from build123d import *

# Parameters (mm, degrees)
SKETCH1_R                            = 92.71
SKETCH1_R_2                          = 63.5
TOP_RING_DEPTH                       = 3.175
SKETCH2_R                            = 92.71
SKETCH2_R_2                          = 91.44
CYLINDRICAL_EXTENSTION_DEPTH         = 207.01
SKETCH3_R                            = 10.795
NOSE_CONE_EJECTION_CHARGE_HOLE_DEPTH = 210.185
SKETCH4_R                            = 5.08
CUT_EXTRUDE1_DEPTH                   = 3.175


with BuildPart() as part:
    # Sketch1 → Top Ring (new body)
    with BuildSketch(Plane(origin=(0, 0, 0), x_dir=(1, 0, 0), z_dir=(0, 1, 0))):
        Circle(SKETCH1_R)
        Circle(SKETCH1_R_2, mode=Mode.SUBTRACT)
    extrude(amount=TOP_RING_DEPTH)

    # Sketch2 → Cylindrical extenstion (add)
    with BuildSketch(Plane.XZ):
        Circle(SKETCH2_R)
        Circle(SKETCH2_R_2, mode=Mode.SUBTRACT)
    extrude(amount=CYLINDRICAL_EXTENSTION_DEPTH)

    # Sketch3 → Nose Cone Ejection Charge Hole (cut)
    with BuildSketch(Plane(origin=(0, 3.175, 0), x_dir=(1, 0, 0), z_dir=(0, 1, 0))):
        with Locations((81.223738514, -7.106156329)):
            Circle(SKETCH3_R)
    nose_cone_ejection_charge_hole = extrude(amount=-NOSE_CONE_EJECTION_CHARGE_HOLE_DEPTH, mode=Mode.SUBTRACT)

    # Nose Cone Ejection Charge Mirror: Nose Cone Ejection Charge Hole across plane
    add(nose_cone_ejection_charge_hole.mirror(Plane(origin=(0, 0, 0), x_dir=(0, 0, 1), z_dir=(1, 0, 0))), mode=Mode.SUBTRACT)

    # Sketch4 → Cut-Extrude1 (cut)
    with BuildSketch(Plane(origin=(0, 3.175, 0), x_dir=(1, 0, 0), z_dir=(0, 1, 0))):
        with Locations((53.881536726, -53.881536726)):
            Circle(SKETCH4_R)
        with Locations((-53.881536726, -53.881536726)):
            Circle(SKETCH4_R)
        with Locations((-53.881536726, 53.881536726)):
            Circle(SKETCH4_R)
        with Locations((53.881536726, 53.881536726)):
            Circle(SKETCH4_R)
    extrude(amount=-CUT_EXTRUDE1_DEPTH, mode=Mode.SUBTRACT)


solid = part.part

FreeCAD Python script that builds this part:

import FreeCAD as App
import Part
import Sketcher
Q = App.Units.Quantity

doc = App.newDocument("Part")
params = doc.addObject("Spreadsheet::Sheet", "Params")
for row, (alias, value) in enumerate([
    ("sketch1_diameter", "5 in"),
    ("sketch1_diameter2", "7.3 in"),
    ("pad1_length", "0.125 in"),
    ("sketch2_diameter", "7.3 in"),
    ("sketch2_diameter2", "7.2 in"),
    ("pad2_length", "8.15 in"),
    ("sketch3_diameter", "0.85 in"),
    ("pocket1_length", "8.275 in"),
    ("sketch4_diameter", "0.4 in"),
    ("pocket2_length", "0.125 in"),
], start=1):
    params.set(f"A{row}", alias)
    params.set(f"B{row}", "=" + value)
    params.setAlias(f"B{row}", alias)

body = doc.addObject("PartDesign::Body", "Body")

sketch1 = body.newObject("Sketcher::SketchObject", "Sketch")
sketch1.AttachmentSupport = (doc.getObject("XZ_Plane"), [""])
sketch1.MapMode = "FlatFace"
sketch1.addGeometry(Part.Circle(App.Vector(0, 0, 0), App.Vector(0, 0, 1), 93), False)
sketch1.addGeometry(Part.Circle(App.Vector(0, 0, 0), App.Vector(0, 0, 1), 64), False)
sketch1.addConstraint(Sketcher.Constraint("Coincident", 0, 3, -1, 1))
sketch1.addConstraint(Sketcher.Constraint("Coincident", 1, 3, -1, 1))
sketch1.addConstraint(Sketcher.Constraint("Diameter", 1, Q("5 in")))
sketch1.addConstraint(Sketcher.Constraint("Diameter", 0, Q("7.3 in")))
sketch1.setExpression("Constraints[2]", "Params.sketch1_diameter")
sketch1.setExpression("Constraints[3]", "Params.sketch1_diameter2")
pad1 = body.newObject("PartDesign::Pad", "Pad")
pad1.Profile = sketch1
pad1.setExpression("Length", "Params.pad1_length")
pad1.Reversed = True

sketch2 = body.newObject("Sketcher::SketchObject", "Sketch001")
sketch2.AttachmentSupport = (doc.getObject("XZ_Plane"), [""])
sketch2.MapMode = "FlatFace"
sketch2.addGeometry(Part.Circle(App.Vector(0, 0, 0), App.Vector(0, 0, 1), 93), False)
sketch2.addGeometry(Part.Circle(App.Vector(0, 0, 0), App.Vector(0, 0, 1), 91), False)
sketch2.addConstraint(Sketcher.Constraint("Coincident", 0, 3, -1, 1))
sketch2.addConstraint(Sketcher.Constraint("Coincident", 1, 3, -1, 1))
sketch2.addConstraint(Sketcher.Constraint("Diameter", 0, Q("7.3 in")))
sketch2.addConstraint(Sketcher.Constraint("Diameter", 1, Q("7.2 in")))
sketch2.setExpression("Constraints[2]", "Params.sketch2_diameter")
sketch2.setExpression("Constraints[3]", "Params.sketch2_diameter2")
pad2 = body.newObject("PartDesign::Pad", "Pad001")
pad2.Profile = sketch2
pad2.setExpression("Length", "Params.pad2_length")

sketch3 = body.newObject("Sketcher::SketchObject", "Sketch002")
sketch3.AttachmentSupport = (doc.getObject("XZ_Plane"), [""])
sketch3.MapMode = "FlatFace"
sketch3.AttachmentOffset = App.Placement(App.Vector(0, 0, -0.125 * 25.4), App.Rotation())
sketch3.addGeometry(Part.Circle(App.Vector(81, 7, 0), App.Vector(0, 0, 1), 11), False)
sketch3.addConstraint(Sketcher.Constraint("Diameter", 0, Q("0.85 in")))
sketch3.addConstraint(Sketcher.Constraint("DistanceX", -1, 1, 0, 3, 81.223739))
sketch3.addConstraint(Sketcher.Constraint("DistanceY", -1, 1, 0, 3, 7.106156))
sketch3.setExpression("Constraints[0]", "Params.sketch3_diameter")
pocket1 = body.newObject("PartDesign::Pocket", "Pocket")
pocket1.Profile = sketch3
pocket1.setExpression("Length", "Params.pocket1_length")
pocket1.Reversed = True
doc.recompute()

mirrored = body.newObject("PartDesign::Mirrored", "Mirrored")
mirrored.Originals = [pocket1]
mirrored.MirrorPlane = (doc.getObject("YZ_Plane"), [""])
body.Tip = mirrored

sketch4 = body.newObject("Sketcher::SketchObject", "Sketch003")
sketch4.AttachmentSupport = (doc.getObject("XZ_Plane"), [""])
sketch4.MapMode = "FlatFace"
sketch4.AttachmentOffset = App.Placement(App.Vector(0, 0, -0.125 * 25.4), App.Rotation())
sketch4.addGeometry(Part.Circle(App.Vector(54, 54, 0), App.Vector(0, 0, 1), 5), False)
sketch4.addGeometry(Part.Circle(App.Vector(-54, 54, 0), App.Vector(0, 0, 1), 5), False)
sketch4.addGeometry(Part.Circle(App.Vector(-54, -54, 0), App.Vector(0, 0, 1), 5), False)
sketch4.addGeometry(Part.Circle(App.Vector(54, -54, 0), App.Vector(0, 0, 1), 5), False)
sketch4.addConstraint(Sketcher.Constraint("Equal", 0, 1))
sketch4.addConstraint(Sketcher.Constraint("Equal", 1, 2))
sketch4.addConstraint(Sketcher.Constraint("Equal", 2, 3))
sketch4.addConstraint(Sketcher.Constraint("Symmetric", 0, 3, 2, 3, -1, 1))
sketch4.addConstraint(Sketcher.Constraint("Symmetric", 1, 3, 3, 3, -1, 1))
sketch4.addConstraint(Sketcher.Constraint("Symmetric", 0, 3, 1, 3, -2))
sketch4.addConstraint(Sketcher.Constraint("Diameter", 0, Q("0.4 in")))
sketch4.addConstraint(Sketcher.Constraint("DistanceX", -1, 1, 0, 3, 53.881537))
sketch4.addConstraint(Sketcher.Constraint("DistanceY", -1, 1, 0, 3, 53.881537))
sketch4.setExpression("Constraints[6]", "Params.sketch4_diameter")
pocket2 = body.newObject("PartDesign::Pocket", "Pocket001")
pocket2.Profile = sketch4
pocket2.setExpression("Length", "Params.pocket2_length")
pocket2.Reversed = True

doc.recompute()
